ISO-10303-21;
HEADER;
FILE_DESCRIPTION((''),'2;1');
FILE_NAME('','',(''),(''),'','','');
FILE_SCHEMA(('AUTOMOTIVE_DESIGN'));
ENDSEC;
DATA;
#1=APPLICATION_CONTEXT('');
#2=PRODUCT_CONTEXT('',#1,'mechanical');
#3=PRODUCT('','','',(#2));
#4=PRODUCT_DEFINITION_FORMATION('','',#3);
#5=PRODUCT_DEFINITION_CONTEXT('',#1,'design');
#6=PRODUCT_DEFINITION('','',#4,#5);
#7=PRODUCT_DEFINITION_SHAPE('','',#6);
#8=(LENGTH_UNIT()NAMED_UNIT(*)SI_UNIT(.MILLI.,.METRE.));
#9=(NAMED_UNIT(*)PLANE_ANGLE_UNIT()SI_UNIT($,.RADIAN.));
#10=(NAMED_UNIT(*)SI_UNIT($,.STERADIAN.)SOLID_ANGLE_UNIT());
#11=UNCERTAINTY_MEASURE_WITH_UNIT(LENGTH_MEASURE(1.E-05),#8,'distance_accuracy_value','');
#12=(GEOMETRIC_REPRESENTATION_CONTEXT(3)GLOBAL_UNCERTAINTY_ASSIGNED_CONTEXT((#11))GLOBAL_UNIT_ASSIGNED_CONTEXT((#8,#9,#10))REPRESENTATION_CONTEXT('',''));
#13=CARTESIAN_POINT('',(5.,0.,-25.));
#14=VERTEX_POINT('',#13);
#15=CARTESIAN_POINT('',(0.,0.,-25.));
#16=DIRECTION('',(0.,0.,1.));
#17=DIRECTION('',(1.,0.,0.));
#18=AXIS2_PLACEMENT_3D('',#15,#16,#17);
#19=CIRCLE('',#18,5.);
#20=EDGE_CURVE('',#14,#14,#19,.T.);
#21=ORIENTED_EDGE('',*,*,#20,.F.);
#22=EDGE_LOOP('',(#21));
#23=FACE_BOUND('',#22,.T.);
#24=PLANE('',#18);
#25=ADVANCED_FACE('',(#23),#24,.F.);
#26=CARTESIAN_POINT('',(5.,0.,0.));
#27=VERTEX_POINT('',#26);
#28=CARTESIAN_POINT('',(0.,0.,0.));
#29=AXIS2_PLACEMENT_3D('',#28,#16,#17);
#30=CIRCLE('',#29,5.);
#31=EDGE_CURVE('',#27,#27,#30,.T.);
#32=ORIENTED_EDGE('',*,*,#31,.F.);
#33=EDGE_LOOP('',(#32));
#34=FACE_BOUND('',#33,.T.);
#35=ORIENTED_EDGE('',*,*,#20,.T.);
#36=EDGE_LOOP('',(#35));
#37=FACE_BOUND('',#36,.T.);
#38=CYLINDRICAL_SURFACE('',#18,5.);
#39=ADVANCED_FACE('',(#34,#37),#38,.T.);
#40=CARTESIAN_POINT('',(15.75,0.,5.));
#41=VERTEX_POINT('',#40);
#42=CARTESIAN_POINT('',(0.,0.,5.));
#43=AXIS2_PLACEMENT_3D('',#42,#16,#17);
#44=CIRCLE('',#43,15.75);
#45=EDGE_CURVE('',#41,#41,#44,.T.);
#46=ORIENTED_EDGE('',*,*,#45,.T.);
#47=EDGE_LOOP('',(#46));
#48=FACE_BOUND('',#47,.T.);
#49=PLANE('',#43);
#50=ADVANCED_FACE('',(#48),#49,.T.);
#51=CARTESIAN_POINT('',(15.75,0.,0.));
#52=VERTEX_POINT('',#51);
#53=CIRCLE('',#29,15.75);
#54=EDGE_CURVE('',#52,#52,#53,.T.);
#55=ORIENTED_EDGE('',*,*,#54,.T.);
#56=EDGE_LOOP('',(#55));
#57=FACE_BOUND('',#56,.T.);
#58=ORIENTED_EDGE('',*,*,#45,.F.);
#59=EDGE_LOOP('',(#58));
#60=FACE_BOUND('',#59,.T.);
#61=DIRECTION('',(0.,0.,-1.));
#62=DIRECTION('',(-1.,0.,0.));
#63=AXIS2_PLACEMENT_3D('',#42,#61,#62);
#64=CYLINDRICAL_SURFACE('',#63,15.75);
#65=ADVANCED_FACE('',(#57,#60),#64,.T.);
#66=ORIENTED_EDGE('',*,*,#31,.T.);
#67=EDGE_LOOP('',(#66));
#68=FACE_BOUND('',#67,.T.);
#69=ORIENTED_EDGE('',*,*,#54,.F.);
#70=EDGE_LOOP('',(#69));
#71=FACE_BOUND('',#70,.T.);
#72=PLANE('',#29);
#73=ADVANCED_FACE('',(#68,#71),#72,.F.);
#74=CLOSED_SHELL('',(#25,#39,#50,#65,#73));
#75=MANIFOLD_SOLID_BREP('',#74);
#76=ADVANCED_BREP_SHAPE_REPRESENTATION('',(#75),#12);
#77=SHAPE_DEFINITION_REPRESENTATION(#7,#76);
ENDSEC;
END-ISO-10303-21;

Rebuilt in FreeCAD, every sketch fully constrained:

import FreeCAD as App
import Part
import Sketcher

V = App.Vector

doc = App.newDocument("Part")
params = doc.addObject("Spreadsheet::Sheet", "Params")
for row, (alias, value) in enumerate([
    ("sketch1_diameter", "31.5 mm"),
    ("pad1_length", "5 mm"),
    ("sketch2_diameter", "10 mm"),
    ("pad2_length", "25 mm"),
], start=1):
    params.set(f"A{row}", alias)
    params.set(f"B{row}", "=" + value)
    params.setAlias(f"B{row}", alias)

body = doc.addObject("PartDesign::Body", "Body")

sketch1 = body.newObject("Sketcher::SketchObject", "Sketch")
sketch1.AttachmentSupport = (doc.getObject("XY_Plane"), [""])
sketch1.MapMode = "FlatFace"
sketch1.addGeometry(Part.Circle(V(0, 0, 0), V(0, 0, 1), 16), False)
sketch1.addConstraint([
    Sketcher.Constraint("Coincident", 0, 3, -1, 1),
    Sketcher.Constraint("Diameter", 0, 31.5),
])
sketch1.setExpression("Constraints[1]", "Params.sketch1_diameter")
pad1 = body.newObject("PartDesign::Pad", "Pad")
pad1.Profile = sketch1
pad1.setExpression("Length", "Params.pad1_length")

sketch2 = body.newObject("Sketcher::SketchObject", "Sketch001")
sketch2.AttachmentSupport = (doc.getObject("XY_Plane"), [""])
sketch2.MapMode = "FlatFace"
sketch2.addGeometry(Part.Circle(V(0, 0, 0), V(0, 0, 1), 5), False)
sketch2.addConstraint([
    Sketcher.Constraint("Coincident", 0, 3, -1, 1),
    Sketcher.Constraint("Diameter", 0, 10.0),
])
sketch2.setExpression("Constraints[1]", "Params.sketch2_diameter")
pad2 = body.newObject("PartDesign::Pad", "Pad001")
pad2.Profile = sketch2
pad2.setExpression("Length", "Params.pad2_length")
pad2.Reversed = True

doc.recompute()
